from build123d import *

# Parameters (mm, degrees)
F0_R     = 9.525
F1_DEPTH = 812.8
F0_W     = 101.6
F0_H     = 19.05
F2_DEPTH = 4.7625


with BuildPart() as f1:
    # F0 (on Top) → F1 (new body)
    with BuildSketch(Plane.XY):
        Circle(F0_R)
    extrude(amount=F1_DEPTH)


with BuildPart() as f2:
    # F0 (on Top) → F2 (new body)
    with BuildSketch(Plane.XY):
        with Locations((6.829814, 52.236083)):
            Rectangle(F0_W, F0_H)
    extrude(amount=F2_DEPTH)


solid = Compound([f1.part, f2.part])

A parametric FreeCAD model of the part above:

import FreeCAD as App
import Part
import Sketcher
Q = App.Units.Quantity

doc = App.newDocument("Part")
body = doc.addObject("PartDesign::Body", "Body")

# Sketch on XY plane
sketch1 = body.newObject("Sketcher::SketchObject", "Sketch")
sketch1.AttachmentSupport = (doc.getObject("XY_Plane"), [""])
sketch1.MapMode = "FlatFace"
sketch1.addGeometry(Part.Circle(App.Vector(0, 0, 0), App.Vector(0, 0, 1), 10), False)
sketch1.addConstraint(Sketcher.Constraint("Coincident", 0, 3, -1, 1))
sketch1.addConstraint(Sketcher.Constraint("Diameter", 0, Q("0.75 in")))
pad1 = body.newObject("PartDesign::Pad", "Pad")
pad1.Profile = sketch1
pad1.Length = Q("32 in")
body2 = doc.addObject("PartDesign::Body", "Body001")

# Sketch on XY plane
sketch2 = body2.newObject("Sketcher::SketchObject", "Sketch001")
sketch2.AttachmentSupport = (doc.getObject("XY_Plane001"), [""])
sketch2.MapMode = "FlatFace"
sketch2.addGeometry(Part.LineSegment(App.Vector(-44, 62, 0), App.Vector(-44, 43, 0)), False)
sketch2.addGeometry(Part.LineSegment(App.Vector(-44, 43, 0), App.Vector(58, 43, 0)), False)
sketch2.addGeometry(Part.LineSegment(App.Vector(58, 43, 0), App.Vector(58, 62, 0)), False)
sketch2.addGeometry(Part.LineSegment(App.Vector(58, 62, 0), App.Vector(-44, 62, 0)), False)
sketch2.addConstraint(Sketcher.Constraint("Coincident", 0, 2, 1, 1))
sketch2.addConstraint(Sketcher.Constraint("Coincident", 1, 2, 2, 1))
sketch2.addConstraint(Sketcher.Constraint("Coincident", 2, 2, 3, 1))
sketch2.addConstraint(Sketcher.Constraint("Coincident", 3, 2, 0, 1))
sketch2.addConstraint(Sketcher.Constraint("Vertical", 0))
sketch2.addConstraint(Sketcher.Constraint("Horizontal", 1))
sketch2.addConstraint(Sketcher.Constraint("Vertical", 2))
sketch2.addConstraint(Sketcher.Constraint("Horizontal", 3))
sketch2.addConstraint(Sketcher.Constraint("DistanceX", 1, 1, 1, 2, Q("4 in")))
sketch2.addConstraint(Sketcher.Constraint("DistanceY", 0, 2, 0, 1, Q("0.75 in")))
sketch2.addConstraint(Sketcher.Constraint("DistanceX", 0, 2, -1, 1, Q("43.970186 mm")))
sketch2.addConstraint(Sketcher.Constraint("DistanceY", -1, 1, 0, 2, Q("42.711083 mm")))
pad2 = body2.newObject("PartDesign::Pad", "Pad001")
pad2.Profile = sketch2
pad2.Length = Q("0.1875 in")

doc.recompute()
